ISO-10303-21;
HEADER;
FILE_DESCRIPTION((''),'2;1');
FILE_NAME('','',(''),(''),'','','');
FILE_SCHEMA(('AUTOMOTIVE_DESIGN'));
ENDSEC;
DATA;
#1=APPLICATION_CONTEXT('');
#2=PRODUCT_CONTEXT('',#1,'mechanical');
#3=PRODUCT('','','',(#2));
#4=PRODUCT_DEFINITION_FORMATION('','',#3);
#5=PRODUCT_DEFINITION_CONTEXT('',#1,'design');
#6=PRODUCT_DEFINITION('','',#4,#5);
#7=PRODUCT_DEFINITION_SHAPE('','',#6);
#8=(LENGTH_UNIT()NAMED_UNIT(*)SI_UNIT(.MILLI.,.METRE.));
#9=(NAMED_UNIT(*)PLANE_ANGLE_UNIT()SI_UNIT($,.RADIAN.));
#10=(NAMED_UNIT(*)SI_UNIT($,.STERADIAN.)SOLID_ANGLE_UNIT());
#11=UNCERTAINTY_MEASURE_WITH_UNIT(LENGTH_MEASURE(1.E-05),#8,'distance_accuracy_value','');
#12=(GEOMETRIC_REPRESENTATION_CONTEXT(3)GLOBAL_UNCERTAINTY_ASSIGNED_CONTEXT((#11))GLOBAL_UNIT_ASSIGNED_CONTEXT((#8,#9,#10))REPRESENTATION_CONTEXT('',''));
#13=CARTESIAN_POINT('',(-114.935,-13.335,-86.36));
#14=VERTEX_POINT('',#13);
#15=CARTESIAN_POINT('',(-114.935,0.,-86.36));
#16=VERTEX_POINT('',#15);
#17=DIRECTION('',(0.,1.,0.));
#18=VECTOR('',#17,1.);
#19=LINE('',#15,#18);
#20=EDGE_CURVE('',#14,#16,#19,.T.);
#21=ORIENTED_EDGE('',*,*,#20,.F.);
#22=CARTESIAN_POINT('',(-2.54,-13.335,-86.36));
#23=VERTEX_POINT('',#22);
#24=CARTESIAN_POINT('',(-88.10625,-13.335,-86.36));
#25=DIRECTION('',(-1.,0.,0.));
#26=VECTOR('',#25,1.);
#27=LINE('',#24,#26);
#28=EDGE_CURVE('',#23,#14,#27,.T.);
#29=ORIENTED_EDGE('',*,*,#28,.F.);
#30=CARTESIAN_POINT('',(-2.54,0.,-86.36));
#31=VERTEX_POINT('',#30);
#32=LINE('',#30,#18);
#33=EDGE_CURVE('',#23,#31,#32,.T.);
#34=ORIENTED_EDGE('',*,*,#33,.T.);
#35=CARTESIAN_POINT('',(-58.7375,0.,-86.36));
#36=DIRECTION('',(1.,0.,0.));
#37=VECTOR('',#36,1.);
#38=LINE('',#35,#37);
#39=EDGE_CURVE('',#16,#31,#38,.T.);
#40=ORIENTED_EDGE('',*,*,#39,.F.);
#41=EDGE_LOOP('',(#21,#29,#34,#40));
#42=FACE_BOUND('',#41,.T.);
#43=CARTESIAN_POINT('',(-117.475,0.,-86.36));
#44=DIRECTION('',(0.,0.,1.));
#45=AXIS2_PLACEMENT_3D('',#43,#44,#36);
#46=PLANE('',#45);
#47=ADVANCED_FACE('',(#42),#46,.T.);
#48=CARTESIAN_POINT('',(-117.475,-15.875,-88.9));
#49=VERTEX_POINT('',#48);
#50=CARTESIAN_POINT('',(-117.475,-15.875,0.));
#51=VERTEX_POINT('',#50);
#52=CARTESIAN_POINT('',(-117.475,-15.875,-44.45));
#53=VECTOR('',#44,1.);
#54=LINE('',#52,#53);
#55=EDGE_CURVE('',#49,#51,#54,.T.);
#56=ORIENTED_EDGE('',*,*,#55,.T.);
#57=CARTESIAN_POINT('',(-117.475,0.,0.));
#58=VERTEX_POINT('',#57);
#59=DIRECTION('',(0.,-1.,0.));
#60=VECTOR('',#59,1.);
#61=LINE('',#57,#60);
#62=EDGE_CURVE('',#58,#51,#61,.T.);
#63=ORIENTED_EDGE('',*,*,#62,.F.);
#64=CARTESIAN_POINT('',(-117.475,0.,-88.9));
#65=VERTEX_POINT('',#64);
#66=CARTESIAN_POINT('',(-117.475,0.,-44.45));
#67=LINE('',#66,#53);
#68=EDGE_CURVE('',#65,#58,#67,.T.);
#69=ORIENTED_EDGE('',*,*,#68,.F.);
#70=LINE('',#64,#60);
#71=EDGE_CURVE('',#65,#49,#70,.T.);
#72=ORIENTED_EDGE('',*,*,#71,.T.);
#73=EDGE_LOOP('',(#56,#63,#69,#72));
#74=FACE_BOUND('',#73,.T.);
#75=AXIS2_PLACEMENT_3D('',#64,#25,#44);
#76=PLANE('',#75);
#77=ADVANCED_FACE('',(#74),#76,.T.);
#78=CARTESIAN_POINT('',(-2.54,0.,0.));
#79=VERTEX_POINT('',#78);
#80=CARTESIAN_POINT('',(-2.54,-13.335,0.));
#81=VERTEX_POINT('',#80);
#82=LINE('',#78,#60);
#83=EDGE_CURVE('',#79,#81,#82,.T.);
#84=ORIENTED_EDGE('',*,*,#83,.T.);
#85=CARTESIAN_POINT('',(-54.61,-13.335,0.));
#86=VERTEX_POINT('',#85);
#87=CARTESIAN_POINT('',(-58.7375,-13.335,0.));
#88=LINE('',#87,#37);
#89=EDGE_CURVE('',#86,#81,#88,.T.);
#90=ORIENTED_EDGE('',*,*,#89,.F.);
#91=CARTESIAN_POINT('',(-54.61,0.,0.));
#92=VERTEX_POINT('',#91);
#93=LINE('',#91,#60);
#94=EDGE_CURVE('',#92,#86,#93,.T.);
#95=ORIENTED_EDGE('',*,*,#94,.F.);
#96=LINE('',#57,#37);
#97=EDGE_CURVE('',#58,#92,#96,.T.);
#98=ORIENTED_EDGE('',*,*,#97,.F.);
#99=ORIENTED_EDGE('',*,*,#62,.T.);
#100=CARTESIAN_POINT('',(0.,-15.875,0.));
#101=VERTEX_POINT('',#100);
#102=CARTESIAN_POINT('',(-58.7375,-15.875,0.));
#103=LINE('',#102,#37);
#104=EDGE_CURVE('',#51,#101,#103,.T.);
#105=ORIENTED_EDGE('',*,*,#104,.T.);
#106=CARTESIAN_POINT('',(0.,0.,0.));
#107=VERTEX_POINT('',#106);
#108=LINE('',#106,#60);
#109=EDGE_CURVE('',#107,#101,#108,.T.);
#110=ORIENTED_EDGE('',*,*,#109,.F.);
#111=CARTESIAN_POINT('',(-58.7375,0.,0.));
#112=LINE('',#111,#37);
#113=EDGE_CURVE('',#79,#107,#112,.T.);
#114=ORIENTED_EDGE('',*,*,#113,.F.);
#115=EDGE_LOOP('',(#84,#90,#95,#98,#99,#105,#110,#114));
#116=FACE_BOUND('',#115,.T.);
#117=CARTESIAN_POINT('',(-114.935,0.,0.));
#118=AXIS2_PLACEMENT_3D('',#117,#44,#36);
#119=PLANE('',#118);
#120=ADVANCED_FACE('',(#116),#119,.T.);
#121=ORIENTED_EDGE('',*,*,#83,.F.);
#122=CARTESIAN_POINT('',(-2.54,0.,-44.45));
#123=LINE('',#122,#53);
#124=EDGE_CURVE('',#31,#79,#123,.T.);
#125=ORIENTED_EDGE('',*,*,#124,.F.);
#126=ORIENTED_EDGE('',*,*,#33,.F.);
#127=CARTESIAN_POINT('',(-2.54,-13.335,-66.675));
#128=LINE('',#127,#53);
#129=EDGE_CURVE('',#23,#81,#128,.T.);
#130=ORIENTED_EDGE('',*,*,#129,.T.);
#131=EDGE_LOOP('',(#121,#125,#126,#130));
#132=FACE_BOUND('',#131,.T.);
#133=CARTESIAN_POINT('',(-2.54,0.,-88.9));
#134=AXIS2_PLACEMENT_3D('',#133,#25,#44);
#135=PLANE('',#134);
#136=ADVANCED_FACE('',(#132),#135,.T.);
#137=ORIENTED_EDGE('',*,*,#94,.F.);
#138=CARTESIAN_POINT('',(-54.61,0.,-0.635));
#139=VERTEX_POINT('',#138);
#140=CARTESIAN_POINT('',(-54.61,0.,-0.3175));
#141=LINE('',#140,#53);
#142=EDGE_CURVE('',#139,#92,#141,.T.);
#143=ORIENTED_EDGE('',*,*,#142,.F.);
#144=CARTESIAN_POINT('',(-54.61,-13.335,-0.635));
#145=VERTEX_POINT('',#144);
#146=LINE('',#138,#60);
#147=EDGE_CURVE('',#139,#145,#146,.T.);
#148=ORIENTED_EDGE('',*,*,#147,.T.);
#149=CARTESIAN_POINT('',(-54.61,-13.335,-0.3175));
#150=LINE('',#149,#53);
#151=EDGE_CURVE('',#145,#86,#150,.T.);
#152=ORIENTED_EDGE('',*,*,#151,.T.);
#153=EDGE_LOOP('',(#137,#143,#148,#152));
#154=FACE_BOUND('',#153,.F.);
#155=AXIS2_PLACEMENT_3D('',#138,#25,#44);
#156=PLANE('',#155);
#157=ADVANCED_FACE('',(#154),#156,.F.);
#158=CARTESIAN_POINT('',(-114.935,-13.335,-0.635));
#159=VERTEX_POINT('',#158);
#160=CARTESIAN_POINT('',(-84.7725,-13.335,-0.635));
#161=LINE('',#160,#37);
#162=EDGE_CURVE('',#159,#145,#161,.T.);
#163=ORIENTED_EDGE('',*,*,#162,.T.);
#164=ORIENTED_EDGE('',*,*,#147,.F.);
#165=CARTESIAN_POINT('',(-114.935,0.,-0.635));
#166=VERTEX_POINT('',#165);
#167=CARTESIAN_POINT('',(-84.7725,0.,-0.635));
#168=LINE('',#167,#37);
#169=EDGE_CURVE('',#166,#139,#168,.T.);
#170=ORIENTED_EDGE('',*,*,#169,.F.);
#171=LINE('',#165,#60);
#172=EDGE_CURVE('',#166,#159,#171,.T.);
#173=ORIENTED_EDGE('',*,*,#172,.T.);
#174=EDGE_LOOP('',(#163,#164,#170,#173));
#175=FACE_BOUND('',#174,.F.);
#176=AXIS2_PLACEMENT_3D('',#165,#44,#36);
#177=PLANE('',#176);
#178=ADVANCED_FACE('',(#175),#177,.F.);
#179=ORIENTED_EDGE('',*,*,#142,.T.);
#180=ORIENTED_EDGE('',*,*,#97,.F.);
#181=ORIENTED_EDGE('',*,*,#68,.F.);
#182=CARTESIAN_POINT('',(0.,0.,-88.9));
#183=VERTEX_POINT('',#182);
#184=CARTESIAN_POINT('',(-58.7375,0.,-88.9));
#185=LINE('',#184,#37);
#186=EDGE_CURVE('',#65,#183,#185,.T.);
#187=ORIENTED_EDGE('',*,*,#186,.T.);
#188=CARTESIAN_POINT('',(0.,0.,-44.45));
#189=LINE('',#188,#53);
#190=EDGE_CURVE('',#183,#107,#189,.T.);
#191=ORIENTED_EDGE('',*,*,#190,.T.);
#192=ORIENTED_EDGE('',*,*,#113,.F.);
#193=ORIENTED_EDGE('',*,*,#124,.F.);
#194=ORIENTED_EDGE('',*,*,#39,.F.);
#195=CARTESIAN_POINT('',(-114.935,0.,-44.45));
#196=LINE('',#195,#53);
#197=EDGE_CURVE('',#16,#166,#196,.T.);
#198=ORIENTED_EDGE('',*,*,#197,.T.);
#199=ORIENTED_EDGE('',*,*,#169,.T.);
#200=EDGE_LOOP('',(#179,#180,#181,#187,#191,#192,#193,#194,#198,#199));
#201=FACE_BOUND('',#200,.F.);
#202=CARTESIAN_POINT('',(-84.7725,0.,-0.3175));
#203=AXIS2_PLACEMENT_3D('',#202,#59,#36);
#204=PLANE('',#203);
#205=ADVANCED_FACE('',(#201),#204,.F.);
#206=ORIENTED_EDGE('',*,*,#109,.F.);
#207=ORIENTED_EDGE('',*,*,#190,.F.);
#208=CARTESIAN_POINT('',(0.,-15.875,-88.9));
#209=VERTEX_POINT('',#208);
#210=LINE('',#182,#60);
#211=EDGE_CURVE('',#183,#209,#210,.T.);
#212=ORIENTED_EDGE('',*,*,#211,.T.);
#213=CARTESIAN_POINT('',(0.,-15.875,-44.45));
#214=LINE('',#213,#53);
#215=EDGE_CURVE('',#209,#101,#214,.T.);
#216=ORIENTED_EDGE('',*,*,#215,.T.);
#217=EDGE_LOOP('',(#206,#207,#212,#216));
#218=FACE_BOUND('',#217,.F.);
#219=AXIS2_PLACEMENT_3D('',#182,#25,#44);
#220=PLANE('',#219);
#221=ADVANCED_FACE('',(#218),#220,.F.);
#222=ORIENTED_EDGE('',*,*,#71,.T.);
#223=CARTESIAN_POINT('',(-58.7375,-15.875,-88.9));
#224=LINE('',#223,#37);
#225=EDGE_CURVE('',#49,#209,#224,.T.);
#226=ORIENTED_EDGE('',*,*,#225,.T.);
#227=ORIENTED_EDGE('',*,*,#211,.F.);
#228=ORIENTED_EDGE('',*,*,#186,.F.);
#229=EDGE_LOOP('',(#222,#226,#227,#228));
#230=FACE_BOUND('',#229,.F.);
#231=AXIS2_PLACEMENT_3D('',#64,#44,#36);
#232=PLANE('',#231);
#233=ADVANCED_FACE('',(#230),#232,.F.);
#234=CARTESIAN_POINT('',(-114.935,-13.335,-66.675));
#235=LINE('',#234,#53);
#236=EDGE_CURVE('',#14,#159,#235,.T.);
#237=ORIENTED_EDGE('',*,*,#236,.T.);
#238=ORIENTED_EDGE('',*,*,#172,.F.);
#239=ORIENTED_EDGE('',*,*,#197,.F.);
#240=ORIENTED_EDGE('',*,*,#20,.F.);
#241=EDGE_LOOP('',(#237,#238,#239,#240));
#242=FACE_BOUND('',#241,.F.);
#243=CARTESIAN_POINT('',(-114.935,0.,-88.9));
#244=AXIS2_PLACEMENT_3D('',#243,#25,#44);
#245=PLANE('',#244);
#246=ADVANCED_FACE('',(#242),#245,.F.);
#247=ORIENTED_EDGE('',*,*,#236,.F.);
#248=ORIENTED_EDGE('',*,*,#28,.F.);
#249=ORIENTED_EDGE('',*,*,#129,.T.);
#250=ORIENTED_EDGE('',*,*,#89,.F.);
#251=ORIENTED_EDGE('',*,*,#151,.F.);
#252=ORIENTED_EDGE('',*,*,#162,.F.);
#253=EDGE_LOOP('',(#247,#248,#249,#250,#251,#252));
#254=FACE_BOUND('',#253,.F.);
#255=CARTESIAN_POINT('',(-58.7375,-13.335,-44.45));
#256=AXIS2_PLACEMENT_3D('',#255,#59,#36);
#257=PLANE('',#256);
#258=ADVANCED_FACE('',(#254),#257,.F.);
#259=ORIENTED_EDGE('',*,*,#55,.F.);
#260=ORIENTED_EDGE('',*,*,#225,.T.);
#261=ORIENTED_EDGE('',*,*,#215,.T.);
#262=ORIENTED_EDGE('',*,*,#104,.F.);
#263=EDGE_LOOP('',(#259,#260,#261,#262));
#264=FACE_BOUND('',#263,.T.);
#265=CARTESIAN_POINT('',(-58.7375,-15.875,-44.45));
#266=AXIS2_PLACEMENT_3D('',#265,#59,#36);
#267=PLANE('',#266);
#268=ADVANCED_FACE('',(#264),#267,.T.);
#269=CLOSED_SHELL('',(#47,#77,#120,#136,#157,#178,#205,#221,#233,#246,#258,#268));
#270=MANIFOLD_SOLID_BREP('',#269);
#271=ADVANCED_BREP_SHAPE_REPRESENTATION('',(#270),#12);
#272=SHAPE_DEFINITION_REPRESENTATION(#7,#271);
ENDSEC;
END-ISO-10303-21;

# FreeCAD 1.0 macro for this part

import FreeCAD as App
import Part
import Sketcher
from FreeCAD import Vector
Q = App.Units.Quantity


def faces_at(feature, points):
    """Names of the faces that lie closest to the given points."""
    faces = feature.Shape.Faces
    near = lambda p: min(range(len(faces)), key=lambda i: faces[i].distToShape(Part.Vertex(*p))[0])
    return sorted({f"Face{near(p) + 1}" for p in points})


def add_polygon(sketch, points):
    """Adds a closed chain of lines whose ends are joined by coincident constraints."""
    first, n = sketch.GeometryCount, len(points)
    for a, b in zip(points, points[1:] + points[:1]):
        sketch.addGeometry(Part.LineSegment(App.Vector(*a, 0), App.Vector(*b, 0)), False)
    for i in range(n):
        sketch.addConstraint(Sketcher.Constraint("Coincident", first + i, 2, first + (i + 1) % n, 1))

doc = App.newDocument("Part")
body = doc.addObject("PartDesign::Body", "Body")

# Sketch on XZ plane
sketch1 = body.newObject("Sketcher::SketchObject", "Sketch")
sketch1.AttachmentSupport = (doc.getObject("XZ_Plane"), [""])
sketch1.MapMode = "FlatFace"
add_polygon(sketch1, [(-117.475, 0), (-117.475, -88.9), (0, -88.9), (0, 0)])  # lines 0-3
sketch1.addConstraint(Sketcher.Constraint("Vertical", 0))
sketch1.addConstraint(Sketcher.Constraint("Horizontal", 1))
sketch1.addConstraint(Sketcher.Constraint("Vertical", 2))
sketch1.addConstraint(Sketcher.Constraint("Horizontal", 3))
sketch1.addConstraint(Sketcher.Constraint("Coincident", 2, 2, -1, 1))
sketch1.addConstraint(Sketcher.Constraint("DistanceY", 0, 2, 0, 1, Q("3.5 in")))
sketch1.addConstraint(Sketcher.Constraint("DistanceX", 1, 1, 1, 2, Q("4.625 in")))
pad1 = body.newObject("PartDesign::Pad", "Pad")
pad1.Profile = sketch1
pad1.Length = Q("0.625 in")
doc.recompute()

thickness = body.newObject("PartDesign::Thickness", "Thickness")
thickness.Base = (pad1, faces_at(pad1, [(-58.737, 0, -44.45), (-58.737, -7.938, 0)]))
thickness.Value = Q("0.1 in")
thickness.Reversed = True
thickness.Join = "Arc"

# Sketch on XZ plane
sketch2 = body.newObject("Sketcher::SketchObject", "Sketch001")
sketch2.AttachmentSupport = (doc.getObject("XZ_Plane"), [""])
sketch2.MapMode = "FlatFace"
add_polygon(sketch2, [(-114.935, 0), (-114.935, -0.635), (-54.61, -0.635), (-54.61, 0)])  # lines 0-3
sketch2.addConstraint(Sketcher.Constraint("Vertical", 0))
sketch2.addConstraint(Sketcher.Constraint("Horizontal", 1))
sketch2.addConstraint(Sketcher.Constraint("Vertical", 2))
sketch2.addConstraint(Sketcher.Constraint("Horizontal", 3))
sketch2.addConstraint(Sketcher.Constraint("PointOnObject", 2, 2, -1))
sketch2.addConstraint(Sketcher.Constraint("DistanceX", 1, 1, 1, 2, Q("2.375 in")))
sketch2.addConstraint(Sketcher.Constraint("DistanceY", 0, 2, 0, 1, Q("0.025 in")))
sketch2.addConstraint(Sketcher.Constraint("DistanceX", 1, 2, -1, 1, Q("2.15 in")))
pad2 = body.newObject("PartDesign::Pad", "Pad001")
pad2.Profile = sketch2
pad2.Type = "UpToLast"

doc.recompute()
